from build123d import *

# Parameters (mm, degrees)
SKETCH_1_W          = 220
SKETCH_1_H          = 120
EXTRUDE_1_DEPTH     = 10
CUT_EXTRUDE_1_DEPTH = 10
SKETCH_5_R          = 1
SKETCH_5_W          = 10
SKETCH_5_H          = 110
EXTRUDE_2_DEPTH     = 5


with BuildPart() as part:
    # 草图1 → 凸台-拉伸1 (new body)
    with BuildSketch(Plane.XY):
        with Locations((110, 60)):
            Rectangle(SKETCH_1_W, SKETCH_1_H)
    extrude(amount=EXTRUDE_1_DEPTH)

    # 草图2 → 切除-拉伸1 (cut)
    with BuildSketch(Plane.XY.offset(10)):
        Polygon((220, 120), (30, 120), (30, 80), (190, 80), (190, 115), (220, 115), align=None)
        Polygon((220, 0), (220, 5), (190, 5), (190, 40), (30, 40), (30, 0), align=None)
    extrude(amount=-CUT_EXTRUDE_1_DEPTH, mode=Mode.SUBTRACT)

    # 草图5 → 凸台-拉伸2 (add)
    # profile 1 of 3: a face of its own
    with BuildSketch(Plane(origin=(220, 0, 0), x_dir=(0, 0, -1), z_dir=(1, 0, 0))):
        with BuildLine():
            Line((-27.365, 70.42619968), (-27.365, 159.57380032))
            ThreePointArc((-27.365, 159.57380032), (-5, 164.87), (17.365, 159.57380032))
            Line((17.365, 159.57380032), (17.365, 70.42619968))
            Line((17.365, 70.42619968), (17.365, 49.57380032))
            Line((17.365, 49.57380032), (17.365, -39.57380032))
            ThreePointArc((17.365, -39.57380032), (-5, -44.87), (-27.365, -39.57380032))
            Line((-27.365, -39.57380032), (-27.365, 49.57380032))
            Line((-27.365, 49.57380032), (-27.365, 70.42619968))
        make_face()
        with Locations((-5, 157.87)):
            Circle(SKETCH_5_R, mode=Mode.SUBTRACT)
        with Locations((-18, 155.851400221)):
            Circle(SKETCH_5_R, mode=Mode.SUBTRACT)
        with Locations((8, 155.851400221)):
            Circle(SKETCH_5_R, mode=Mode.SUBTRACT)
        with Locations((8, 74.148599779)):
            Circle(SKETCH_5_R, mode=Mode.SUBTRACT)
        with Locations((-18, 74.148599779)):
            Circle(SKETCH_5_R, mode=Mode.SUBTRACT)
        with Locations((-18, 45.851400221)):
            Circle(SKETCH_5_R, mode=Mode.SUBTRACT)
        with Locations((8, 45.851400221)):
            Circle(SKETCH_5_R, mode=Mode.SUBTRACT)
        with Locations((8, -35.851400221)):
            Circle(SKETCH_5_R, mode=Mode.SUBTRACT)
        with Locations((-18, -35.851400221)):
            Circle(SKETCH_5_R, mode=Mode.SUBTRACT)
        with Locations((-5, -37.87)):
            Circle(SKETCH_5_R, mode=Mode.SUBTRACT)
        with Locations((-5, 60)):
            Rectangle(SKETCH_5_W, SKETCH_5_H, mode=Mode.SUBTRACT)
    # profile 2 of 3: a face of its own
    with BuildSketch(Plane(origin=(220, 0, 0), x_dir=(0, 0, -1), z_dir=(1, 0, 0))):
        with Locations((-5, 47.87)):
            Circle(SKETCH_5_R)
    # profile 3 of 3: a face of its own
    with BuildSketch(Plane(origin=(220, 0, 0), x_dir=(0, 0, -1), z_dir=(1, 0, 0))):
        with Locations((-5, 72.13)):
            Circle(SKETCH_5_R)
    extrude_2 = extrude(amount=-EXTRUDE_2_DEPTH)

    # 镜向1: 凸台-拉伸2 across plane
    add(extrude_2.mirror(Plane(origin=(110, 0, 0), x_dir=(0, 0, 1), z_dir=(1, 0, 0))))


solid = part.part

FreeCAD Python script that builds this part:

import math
import FreeCAD as App
import Part
import Sketcher
Q = App.Units.Quantity


def add_polygon(sketch, points):
    """Adds a closed chain of lines whose ends are joined by coincident constraints."""
    first, n = sketch.GeometryCount, len(points)
    for a, b in zip(points, points[1:] + points[:1]):
        sketch.addGeometry(Part.LineSegment(App.Vector(*a, 0), App.Vector(*b, 0)), False)
    for i in range(n):
        sketch.addConstraint(Sketcher.Constraint("Coincident", first + i, 2, first + (i + 1) % n, 1))

doc = App.newDocument("Part")
params = doc.addObject("Spreadsheet::Sheet", "Params")
for row, (alias, value) in enumerate([
    ("sketch1_width", "220 mm"),
    ("sketch1_height", "120 mm"),
    ("pad1_length", "10 mm"),
    ("sketch2_width", "190 mm"),
    ("sketch2_width2", "160 mm"),
    ("sketch2_height", "40 mm"),
    ("sketch2_height2", "35 mm"),
    ("pocket1_length", "10 mm"),
    ("sketch3_diameter", "2 mm"),
    ("sketch3_width", "110 mm"),
    ("sketch3_height", "10 mm"),
    ("sketch3_radius", "49.87 mm"),
    ("pad2_length", "5 mm"),
], start=1):
    params.set(f"A{row}", alias)
    params.set(f"B{row}", "=" + value)
    params.setAlias(f"B{row}", alias)

body = doc.addObject("PartDesign::Body", "Body")

sketch1 = body.newObject("Sketcher::SketchObject", "Sketch")
sketch1.AttachmentSupport = (doc.getObject("XY_Plane"), [""])
sketch1.MapMode = "FlatFace"
add_polygon(sketch1, [(0, 120), (0, 0), (220, 0), (220, 120)])
sketch1.addConstraint(Sketcher.Constraint("Vertical", 0))
sketch1.addConstraint(Sketcher.Constraint("Horizontal", 1))
sketch1.addConstraint(Sketcher.Constraint("Vertical", 2))
sketch1.addConstraint(Sketcher.Constraint("Horizontal", 3))
sketch1.addConstraint(Sketcher.Constraint("Coincident", 0, 2, -1, 1))
sketch1.addConstraint(Sketcher.Constraint("DistanceX", 1, 1, 1, 2, Q("220 mm")))
sketch1.addConstraint(Sketcher.Constraint("DistanceY", 0, 2, 0, 1, Q("120 mm")))
sketch1.setExpression("Constraints[9]", "Params.sketch1_width")
sketch1.setExpression("Constraints[10]", "Params.sketch1_height")
pad1 = body.newObject("PartDesign::Pad", "Pad")
pad1.Profile = sketch1
pad1.setExpression("Length", "Params.pad1_length")

sketch2 = body.newObject("Sketcher::SketchObject", "Sketch001")
sketch2.AttachmentSupport = (doc.getObject("XY_Plane"), [""])
sketch2.MapMode = "FlatFace"
sketch2.AttachmentOffset = App.Placement(App.Vector(0, 0, 10), App.Rotation())
add_polygon(sketch2, [(220, 120), (30, 120), (30, 80), (190, 80), (190, 115), (220, 115)])
add_polygon(sketch2, [(220, 0), (220, 5), (190, 5), (190, 40), (30, 40), (30, 0)])
sketch2.addConstraint(Sketcher.Constraint("Horizontal", 0))
sketch2.addConstraint(Sketcher.Constraint("Vertical", 1))
sketch2.addConstraint(Sketcher.Constraint("Horizontal", 2))
sketch2.addConstraint(Sketcher.Constraint("Vertical", 3))
sketch2.addConstraint(Sketcher.Constraint("Horizontal", 4))
sketch2.addConstraint(Sketcher.Constraint("Vertical", 5))
sketch2.addConstraint(Sketcher.Constraint("Vertical", 6))
sketch2.addConstraint(Sketcher.Constraint("Horizontal", 7))
sketch2.addConstraint(Sketcher.Constraint("Vertical", 8))
sketch2.addConstraint(Sketcher.Constraint("Horizontal", 9))
sketch2.addConstraint(Sketcher.Constraint("Vertical", 10))
sketch2.addConstraint(Sketcher.Constraint("Horizontal", 11))
sketch2.addConstraint(Sketcher.Constraint("PointOnObject", 10, 2, -1))
sketch2.addConstraint(Sketcher.Constraint("Vertical", 5, 2, 6, 2))
sketch2.addConstraint(Sketcher.Constraint("Vertical", 3, 2, 7, 2))
sketch2.addConstraint(Sketcher.Constraint("Vertical", 1, 2, 9, 2))
sketch2.addConstraint(Sketcher.Constraint("Equal", 5, 6))
sketch2.addConstraint(Sketcher.Constraint("Equal", 3, 8))
sketch2.addConstraint(Sketcher.Constraint("DistanceX", 0, 2, 0, 1, Q("190 mm")))
sketch2.addConstraint(Sketcher.Constraint("DistanceX", 2, 1, 2, 2, Q("160 mm")))
sketch2.addConstraint(Sketcher.Constraint("DistanceY", 1, 2, 1, 1, Q("40 mm")))
sketch2.addConstraint(Sketcher.Constraint("DistanceY", 3, 1, 3, 2, Q("35 mm")))
sketch2.addConstraint(Sketcher.Constraint("DistanceX", -1, 1, 0, 2, Q("30 mm")))
sketch2.addConstraint(Sketcher.Constraint("DistanceY", -1, 1, 0, 2, Q("120 mm")))
sketch2.setExpression("Constraints[30]", "Params.sketch2_width")
sketch2.setExpression("Constraints[31]", "Params.sketch2_width2")
sketch2.setExpression("Constraints[32]", "Params.sketch2_height")
sketch2.setExpression("Constraints[33]", "Params.sketch2_height2")
pocket1 = body.newObject("PartDesign::Pocket", "Pocket")
pocket1.Profile = sketch2
pocket1.setExpression("Length", "Params.pocket1_length")

sketch3 = body.newObject("Sketcher::SketchObject", "Sketch002")
sketch3.AttachmentSupport = (doc.getObject("YZ_Plane"), [""])
sketch3.MapMode = "FlatFace"
sketch3.AttachmentOffset = App.Placement(App.Vector(0, 0, 220), App.Rotation())
sketch3.addGeometry(Part.ArcOfCircle(Part.Circle(App.Vector(115, 5, 0), App.Vector(0, 0, 1), 49.9), math.radians(-27), math.radians(27)), False)
sketch3.addGeometry(Part.LineSegment(App.Vector(159.6, 27.4, 0), App.Vector(-39.6, 27.4, 0)), False)
sketch3.addGeometry(Part.ArcOfCircle(Part.Circle(App.Vector(5, 5, 0), App.Vector(0, 0, 1), 49.9), math.radians(153), math.radians(207)), False)
sketch3.addGeometry(Part.LineSegment(App.Vector(-39.6, -17.4, 0), App.Vector(159.6, -17.4, 0)), False)
sketch3.addGeometry(Part.Circle(App.Vector(-35.9, -8, 0), App.Vector(0, 0, 1), 1), False)
sketch3.addGeometry(Part.Circle(App.Vector(45.9, -8, 0), App.Vector(0, 0, 1), 1), False)
sketch3.addGeometry(Part.Circle(App.Vector(-37.9, 5, 0), App.Vector(0, 0, 1), 1), False)
sketch3.addGeometry(Part.Circle(App.Vector(-35.9, 18, 0), App.Vector(0, 0, 1), 1), False)
sketch3.addGeometry(Part.Circle(App.Vector(45.9, 18, 0), App.Vector(0, 0, 1), 1), False)
sketch3.addGeometry(Part.Circle(App.Vector(74.1, -8, 0), App.Vector(0, 0, 1), 1), False)
sketch3.addGeometry(Part.Circle(App.Vector(155.9, -8, 0), App.Vector(0, 0, 1), 1), False)
add_polygon(sketch3, [(5, 10), (115, 10), (115, 0), (5, 0)])
sketch3.addGeometry(Part.Circle(App.Vector(74.1, 18, 0), App.Vector(0, 0, 1), 1), False)
sketch3.addGeometry(Part.Circle(App.Vector(157.9, 5, 0), App.Vector(0, 0, 1), 1), False)
sketch3.addGeometry(Part.Circle(App.Vector(155.9, 18, 0), App.Vector(0, 0, 1), 1), False)
sketch3.addGeometry(Part.Circle(App.Vector(47.9, 5, 0), App.Vector(0, 0, 1), 1), False)
sketch3.addGeometry(Part.Circle(App.Vector(72.1, 5, 0), App.Vector(0, 0, 1), 1), False)
sketch3.addConstraint(Sketcher.Constraint("Coincident", 0, 2, 1, 1))
sketch3.addConstraint(Sketcher.Constraint("Coincident", 1, 2, 2, 1))
sketch3.addConstraint(Sketcher.Constraint("Coincident", 2, 2, 3, 1))
sketch3.addConstraint(Sketcher.Constraint("Coincident", 3, 2, 0, 1))
sketch3.addConstraint(Sketcher.Constraint("Horizontal", 1))
sketch3.addConstraint(Sketcher.Constraint("Horizontal", 3))
sketch3.addConstraint(Sketcher.Constraint("Horizontal", 11))
sketch3.addConstraint(Sketcher.Constraint("Vertical", 12))
sketch3.addConstraint(Sketcher.Constraint("Horizontal", 13))
sketch3.addConstraint(Sketcher.Constraint("Vertical", 14))
sketch3.addConstraint(Sketcher.Constraint("Equal", 0, 2))
sketch3.addConstraint(Sketcher.Constraint("Equal", 4, 5))
sketch3.addConstraint(Sketcher.Constraint("Equal", 5, 6))
sketch3.addConstraint(Sketcher.Constraint("Equal", 6, 7))
sketch3.addConstraint(Sketcher.Constraint("Equal", 7, 8))
sketch3.addConstraint(Sketcher.Constraint("Equal", 8, 9))
sketch3.addConstraint(Sketcher.Constraint("Equal", 9, 10))
sketch3.addConstraint(Sketcher.Constraint("Equal", 10, 15))
sketch3.addConstraint(Sketcher.Constraint("Equal", 15, 16))
sketch3.addConstraint(Sketcher.Constraint("Equal", 16, 17))
sketch3.addConstraint(Sketcher.Constraint("Equal", 17, 18))
sketch3.addConstraint(Sketcher.Constraint("Equal", 18, 19))
sketch3.addConstraint(Sketcher.Constraint("PointOnObject", 12, 2, -1))
sketch3.addConstraint(Sketcher.Constraint("Horizontal", 0, 3, 2, 3))
sketch3.addConstraint(Sketcher.Constraint("Horizontal", 4, 3, 5, 3))
sketch3.addConstraint(Sketcher.Constraint("Horizontal", 2, 3, 6, 3))
sketch3.addConstraint(Sketcher.Constraint("Horizontal", 7, 3, 8, 3))
sketch3.addConstraint(Sketcher.Constraint("Horizontal", 5, 3, 9, 3))
sketch3.addConstraint(Sketcher.Constraint("Horizontal", 9, 3, 10, 3))
sketch3.addConstraint(Sketcher.Constraint("Horizontal", 8, 3, 15, 3))
sketch3.addConstraint(Sketcher.Constraint("Horizontal", 6, 3, 16, 3))
sketch3.addConstraint(Sketcher.Constraint("Horizontal", 15, 3, 17, 3))
sketch3.addConstraint(Sketcher.Constraint("Horizontal", 16, 3, 18, 3))
sketch3.addConstraint(Sketcher.Constraint("Horizontal", 18, 3, 19, 3))
sketch3.addConstraint(Sketcher.Constraint("Vertical", 4, 3, 7, 3))
sketch3.addConstraint(Sketcher.Constraint("Vertical", 5, 3, 8, 3))
sketch3.addConstraint(Sketcher.Constraint("Vertical", 9, 3, 15, 3))
sketch3.addConstraint(Sketcher.Constraint("Vertical", 10, 3, 17, 3))
sketch3.addConstraint(Sketcher.Constraint("Vertical", 1, 2, 2, 2))
sketch3.addConstraint(Sketcher.Constraint("Vertical", 0, 3, 11, 2))
sketch3.addConstraint(Sketcher.Constraint("Vertical", 2, 3, 13, 2))
sketch3.addConstraint(Sketcher.Constraint("Diameter", 4, Q("2 mm")))
sketch3.addConstraint(Sketcher.Constraint("DistanceX", 11, 1, 11, 2, Q("110 mm")))
sketch3.addConstraint(Sketcher.Constraint("DistanceY", 12, 2, 12, 1, Q("10 mm")))
sketch3.addConstraint(Sketcher.Constraint("Radius", 0, Q("49.87 mm")))
sketch3.addConstraint(Sketcher.Constraint("DistanceX", -1, 1, 0, 3, Q("115 mm")))
sketch3.addConstraint(Sketcher.Constraint("DistanceY", -1, 1, 0, 3, Q("5 mm")))
sketch3.addConstraint(Sketcher.Constraint("DistanceY", 4, 3, -1, 1, Q("8 mm")))
sketch3.addConstraint(Sketcher.Constraint("DistanceY", -1, 1, 7, 3, Q("18 mm")))
sketch3.addConstraint(Sketcher.Constraint("DistanceX", 4, 3, 9, 3, Q("110 mm")))
sketch3.addConstraint(Sketcher.Constraint("DistanceX", 5, 3, 10, 3, Q("110 mm")))
sketch3.addConstraint(Sketcher.Constraint("DistanceX", 6, 3, -1, 1, Q("37.87 mm")))
sketch3.addConstraint(Sketcher.Constraint("DistanceX", -1, 1, 16, 3, Q("157.87 mm")))
sketch3.addConstraint(Sketcher.Constraint("DistanceX", -1, 1, 18, 3, Q("47.87 mm")))
sketch3.addConstraint(Sketcher.Constraint("DistanceX", -1, 1, 19, 3, Q("72.13 mm")))
sketch3.addConstraint(Sketcher.Constraint("DistanceY", 2, 2, 1, 2, Q("44.73 mm")))
sketch3.addConstraint(Sketcher.Constraint("DistanceX", 4, 3, -1, 1, Q("35.8514 mm")))
sketch3.addConstraint(Sketcher.Constraint("DistanceX", -1, 1, 5, 3, Q("45.8514 mm")))
sketch3.setExpression("Constraints[45]", "Params.sketch3_diameter")
sketch3.setExpression("Constraints[46]", "Params.sketch3_width")
sketch3.setExpression("Constraints[47]", "Params.sketch3_height")
sketch3.setExpression("Constraints[48]", "Params.sketch3_radius")
pad2 = body.newObject("PartDesign::Pad", "Pad001")
pad2.Profile = sketch3
pad2.setExpression("Length", "Params.pad2_length")
pad2.Reversed = True
doc.recompute()

datumplane = body.newObject("PartDesign::Plane", "DatumPlane")
datumplane.AttachmentSupport = (doc.getObject("YZ_Plane"), [""])
datumplane.MapMode = "FlatFace"
datumplane.AttachmentOffset = App.Placement(App.Vector(0, 0, 110), App.Rotation())
mirrored = body.newObject("PartDesign::Mirrored", "Mirrored")
mirrored.Originals = [pad2]
mirrored.MirrorPlane = (datumplane, [""])
body.Tip = mirrored

doc.recompute()
